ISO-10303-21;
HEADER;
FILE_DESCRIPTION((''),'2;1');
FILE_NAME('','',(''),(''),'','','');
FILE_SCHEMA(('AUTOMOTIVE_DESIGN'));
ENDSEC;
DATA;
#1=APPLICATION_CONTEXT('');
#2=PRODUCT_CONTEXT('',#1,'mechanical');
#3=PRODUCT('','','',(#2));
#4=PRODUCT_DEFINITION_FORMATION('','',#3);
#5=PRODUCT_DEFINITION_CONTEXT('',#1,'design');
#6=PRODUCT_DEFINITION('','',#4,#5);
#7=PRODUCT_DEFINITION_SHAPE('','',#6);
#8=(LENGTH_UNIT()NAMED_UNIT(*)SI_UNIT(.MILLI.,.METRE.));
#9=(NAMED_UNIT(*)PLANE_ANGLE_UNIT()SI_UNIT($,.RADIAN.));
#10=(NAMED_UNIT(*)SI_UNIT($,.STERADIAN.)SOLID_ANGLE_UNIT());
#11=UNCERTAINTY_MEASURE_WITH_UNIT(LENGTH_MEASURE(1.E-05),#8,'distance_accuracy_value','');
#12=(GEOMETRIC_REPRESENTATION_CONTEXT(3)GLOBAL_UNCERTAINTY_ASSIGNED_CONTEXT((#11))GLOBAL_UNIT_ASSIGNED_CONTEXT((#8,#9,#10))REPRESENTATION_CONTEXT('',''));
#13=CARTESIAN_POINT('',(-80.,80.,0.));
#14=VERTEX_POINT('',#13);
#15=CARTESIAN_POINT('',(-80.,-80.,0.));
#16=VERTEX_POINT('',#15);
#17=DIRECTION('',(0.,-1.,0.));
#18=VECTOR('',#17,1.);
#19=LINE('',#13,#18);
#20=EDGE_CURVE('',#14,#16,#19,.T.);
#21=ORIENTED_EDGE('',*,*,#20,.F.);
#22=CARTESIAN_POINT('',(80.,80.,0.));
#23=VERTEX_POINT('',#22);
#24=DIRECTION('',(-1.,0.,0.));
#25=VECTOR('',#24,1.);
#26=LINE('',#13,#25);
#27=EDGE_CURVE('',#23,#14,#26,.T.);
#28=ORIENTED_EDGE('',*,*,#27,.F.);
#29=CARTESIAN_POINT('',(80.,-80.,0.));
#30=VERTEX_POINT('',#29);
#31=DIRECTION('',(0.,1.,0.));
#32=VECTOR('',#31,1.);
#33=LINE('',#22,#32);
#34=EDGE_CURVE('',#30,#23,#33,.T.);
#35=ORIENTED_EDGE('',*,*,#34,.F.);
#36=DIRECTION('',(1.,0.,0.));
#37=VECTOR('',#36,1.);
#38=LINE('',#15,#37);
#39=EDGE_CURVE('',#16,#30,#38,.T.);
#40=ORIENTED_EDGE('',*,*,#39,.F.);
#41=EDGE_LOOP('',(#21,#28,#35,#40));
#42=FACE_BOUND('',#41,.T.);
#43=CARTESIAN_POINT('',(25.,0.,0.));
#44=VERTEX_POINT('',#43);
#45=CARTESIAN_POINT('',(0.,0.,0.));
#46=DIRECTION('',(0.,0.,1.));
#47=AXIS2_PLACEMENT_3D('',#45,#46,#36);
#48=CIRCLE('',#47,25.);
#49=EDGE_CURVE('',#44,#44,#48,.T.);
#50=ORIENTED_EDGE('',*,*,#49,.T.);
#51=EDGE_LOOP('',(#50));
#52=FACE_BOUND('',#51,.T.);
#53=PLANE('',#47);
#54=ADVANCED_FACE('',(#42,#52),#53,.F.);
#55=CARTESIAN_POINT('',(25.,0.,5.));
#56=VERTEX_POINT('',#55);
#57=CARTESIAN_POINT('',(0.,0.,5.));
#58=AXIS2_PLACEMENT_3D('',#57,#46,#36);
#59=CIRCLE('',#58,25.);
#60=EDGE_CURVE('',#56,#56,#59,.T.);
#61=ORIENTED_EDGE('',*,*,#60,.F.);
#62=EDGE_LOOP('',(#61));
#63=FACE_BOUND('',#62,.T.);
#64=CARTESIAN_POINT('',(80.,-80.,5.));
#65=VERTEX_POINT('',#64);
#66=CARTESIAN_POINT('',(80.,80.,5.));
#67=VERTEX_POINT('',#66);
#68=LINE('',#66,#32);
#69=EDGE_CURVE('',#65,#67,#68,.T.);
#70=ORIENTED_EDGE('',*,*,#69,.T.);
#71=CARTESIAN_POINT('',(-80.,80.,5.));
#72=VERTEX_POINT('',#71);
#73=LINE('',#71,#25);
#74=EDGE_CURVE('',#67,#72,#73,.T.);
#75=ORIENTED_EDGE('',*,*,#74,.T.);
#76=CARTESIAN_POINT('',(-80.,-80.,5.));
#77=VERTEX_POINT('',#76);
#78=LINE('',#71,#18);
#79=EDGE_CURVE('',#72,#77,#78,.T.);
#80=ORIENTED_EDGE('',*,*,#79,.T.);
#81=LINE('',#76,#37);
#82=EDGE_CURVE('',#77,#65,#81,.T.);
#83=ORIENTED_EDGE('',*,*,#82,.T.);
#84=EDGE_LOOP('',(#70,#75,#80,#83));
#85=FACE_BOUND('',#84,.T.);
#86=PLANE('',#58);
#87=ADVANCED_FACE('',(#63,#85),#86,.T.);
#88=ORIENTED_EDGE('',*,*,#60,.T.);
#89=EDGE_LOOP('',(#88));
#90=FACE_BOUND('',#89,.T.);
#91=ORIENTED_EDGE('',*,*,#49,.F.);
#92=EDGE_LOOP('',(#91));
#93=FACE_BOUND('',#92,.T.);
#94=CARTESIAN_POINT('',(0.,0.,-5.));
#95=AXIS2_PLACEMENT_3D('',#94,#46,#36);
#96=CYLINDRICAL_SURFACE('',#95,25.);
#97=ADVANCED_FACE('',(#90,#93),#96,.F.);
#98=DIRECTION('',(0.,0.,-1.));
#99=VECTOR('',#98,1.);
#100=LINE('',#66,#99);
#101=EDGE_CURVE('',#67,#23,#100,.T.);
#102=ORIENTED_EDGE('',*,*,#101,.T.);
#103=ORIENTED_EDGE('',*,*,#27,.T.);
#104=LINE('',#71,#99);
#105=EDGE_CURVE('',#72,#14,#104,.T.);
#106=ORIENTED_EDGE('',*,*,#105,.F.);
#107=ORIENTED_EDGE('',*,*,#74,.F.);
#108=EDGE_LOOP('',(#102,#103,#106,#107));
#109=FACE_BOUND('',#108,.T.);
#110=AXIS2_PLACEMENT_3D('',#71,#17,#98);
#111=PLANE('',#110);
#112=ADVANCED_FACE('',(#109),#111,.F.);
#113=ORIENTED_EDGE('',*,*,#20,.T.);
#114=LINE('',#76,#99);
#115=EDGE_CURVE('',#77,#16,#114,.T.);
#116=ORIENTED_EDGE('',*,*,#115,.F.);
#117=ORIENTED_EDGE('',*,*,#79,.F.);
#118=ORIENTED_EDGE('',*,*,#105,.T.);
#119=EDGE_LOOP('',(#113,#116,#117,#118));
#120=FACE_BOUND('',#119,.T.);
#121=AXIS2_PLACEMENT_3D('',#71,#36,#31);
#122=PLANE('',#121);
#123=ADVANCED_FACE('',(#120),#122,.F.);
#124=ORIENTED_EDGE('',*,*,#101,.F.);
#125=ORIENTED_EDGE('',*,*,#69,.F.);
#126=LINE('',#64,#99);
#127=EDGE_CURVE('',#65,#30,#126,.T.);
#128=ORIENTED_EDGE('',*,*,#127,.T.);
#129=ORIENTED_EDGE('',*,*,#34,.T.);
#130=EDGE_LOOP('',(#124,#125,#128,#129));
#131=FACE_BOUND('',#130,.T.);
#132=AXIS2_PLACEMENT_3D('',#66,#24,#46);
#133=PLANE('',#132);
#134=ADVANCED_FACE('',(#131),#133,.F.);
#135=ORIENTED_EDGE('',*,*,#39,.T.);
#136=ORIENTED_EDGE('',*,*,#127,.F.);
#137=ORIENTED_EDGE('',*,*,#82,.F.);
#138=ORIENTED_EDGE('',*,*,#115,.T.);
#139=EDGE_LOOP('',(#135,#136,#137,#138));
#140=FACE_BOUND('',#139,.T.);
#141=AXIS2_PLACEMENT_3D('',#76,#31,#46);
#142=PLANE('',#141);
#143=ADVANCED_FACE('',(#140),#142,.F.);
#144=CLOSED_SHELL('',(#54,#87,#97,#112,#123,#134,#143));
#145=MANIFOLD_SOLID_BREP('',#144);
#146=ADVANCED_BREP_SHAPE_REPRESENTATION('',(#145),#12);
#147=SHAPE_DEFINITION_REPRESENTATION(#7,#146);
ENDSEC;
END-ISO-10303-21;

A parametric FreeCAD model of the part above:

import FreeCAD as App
import Part
import Sketcher


def add_polygon(sketch, points):
    """Adds a closed chain of lines whose ends are joined by coincident constraints."""
    first, n = sketch.GeometryCount, len(points)
    for a, b in zip(points, points[1:] + points[:1]):
        sketch.addGeometry(Part.LineSegment(App.Vector(*a, 0), App.Vector(*b, 0)), False)
    for i in range(n):
        sketch.addConstraint(Sketcher.Constraint("Coincident", first + i, 2, first + (i + 1) % n, 1))

doc = App.newDocument("Part")
body = doc.addObject("PartDesign::Body", "Body")

# Sketch on XY plane
sketch1 = body.newObject("Sketcher::SketchObject", "Sketch")
sketch1.AttachmentSupport = (doc.getObject("XY_Plane"), [""])
sketch1.MapMode = "FlatFace"
add_polygon(sketch1, [(-80, 80), (-80, -80), (80, -80), (80, 80)])  # lines 0-3
sketch1.addConstraint(Sketcher.Constraint("Vertical", 0))
sketch1.addConstraint(Sketcher.Constraint("Horizontal", 1))
sketch1.addConstraint(Sketcher.Constraint("Vertical", 2))
sketch1.addConstraint(Sketcher.Constraint("Horizontal", 3))
sketch1.addConstraint(Sketcher.Constraint("Symmetric", 0, 2, 2, 2, -1, 1))
sketch1.addConstraint(Sketcher.Constraint("Equal", 3, 0))
sketch1.addConstraint(Sketcher.Constraint("DistanceX", 1, 1, 1, 2, 160.0))
pad1 = body.newObject("PartDesign::Pad", "Pad")
pad1.Profile = sketch1
pad1.Length = 5

# Sketch on XY plane
sketch2 = body.newObject("Sketcher::SketchObject", "Sketch001")
sketch2.AttachmentSupport = (doc.getObject("XY_Plane"), [""])
sketch2.MapMode = "FlatFace"
sketch2.AttachmentOffset = App.Placement(App.Vector(0, 0, 5), App.Rotation())
sketch2.addGeometry(Part.Circle(App.Vector(0, 0, 0), App.Vector(0, 0, 1), 25), False)
sketch2.addConstraint(Sketcher.Constraint("Coincident", 0, 3, -1, 1))
sketch2.addConstraint(Sketcher.Constraint("Diameter", 0, 50.0))
pocket1 = body.newObject("PartDesign::Pocket", "Pocket")
pocket1.Profile = sketch2
pocket1.Length = 10

doc.recompute()
